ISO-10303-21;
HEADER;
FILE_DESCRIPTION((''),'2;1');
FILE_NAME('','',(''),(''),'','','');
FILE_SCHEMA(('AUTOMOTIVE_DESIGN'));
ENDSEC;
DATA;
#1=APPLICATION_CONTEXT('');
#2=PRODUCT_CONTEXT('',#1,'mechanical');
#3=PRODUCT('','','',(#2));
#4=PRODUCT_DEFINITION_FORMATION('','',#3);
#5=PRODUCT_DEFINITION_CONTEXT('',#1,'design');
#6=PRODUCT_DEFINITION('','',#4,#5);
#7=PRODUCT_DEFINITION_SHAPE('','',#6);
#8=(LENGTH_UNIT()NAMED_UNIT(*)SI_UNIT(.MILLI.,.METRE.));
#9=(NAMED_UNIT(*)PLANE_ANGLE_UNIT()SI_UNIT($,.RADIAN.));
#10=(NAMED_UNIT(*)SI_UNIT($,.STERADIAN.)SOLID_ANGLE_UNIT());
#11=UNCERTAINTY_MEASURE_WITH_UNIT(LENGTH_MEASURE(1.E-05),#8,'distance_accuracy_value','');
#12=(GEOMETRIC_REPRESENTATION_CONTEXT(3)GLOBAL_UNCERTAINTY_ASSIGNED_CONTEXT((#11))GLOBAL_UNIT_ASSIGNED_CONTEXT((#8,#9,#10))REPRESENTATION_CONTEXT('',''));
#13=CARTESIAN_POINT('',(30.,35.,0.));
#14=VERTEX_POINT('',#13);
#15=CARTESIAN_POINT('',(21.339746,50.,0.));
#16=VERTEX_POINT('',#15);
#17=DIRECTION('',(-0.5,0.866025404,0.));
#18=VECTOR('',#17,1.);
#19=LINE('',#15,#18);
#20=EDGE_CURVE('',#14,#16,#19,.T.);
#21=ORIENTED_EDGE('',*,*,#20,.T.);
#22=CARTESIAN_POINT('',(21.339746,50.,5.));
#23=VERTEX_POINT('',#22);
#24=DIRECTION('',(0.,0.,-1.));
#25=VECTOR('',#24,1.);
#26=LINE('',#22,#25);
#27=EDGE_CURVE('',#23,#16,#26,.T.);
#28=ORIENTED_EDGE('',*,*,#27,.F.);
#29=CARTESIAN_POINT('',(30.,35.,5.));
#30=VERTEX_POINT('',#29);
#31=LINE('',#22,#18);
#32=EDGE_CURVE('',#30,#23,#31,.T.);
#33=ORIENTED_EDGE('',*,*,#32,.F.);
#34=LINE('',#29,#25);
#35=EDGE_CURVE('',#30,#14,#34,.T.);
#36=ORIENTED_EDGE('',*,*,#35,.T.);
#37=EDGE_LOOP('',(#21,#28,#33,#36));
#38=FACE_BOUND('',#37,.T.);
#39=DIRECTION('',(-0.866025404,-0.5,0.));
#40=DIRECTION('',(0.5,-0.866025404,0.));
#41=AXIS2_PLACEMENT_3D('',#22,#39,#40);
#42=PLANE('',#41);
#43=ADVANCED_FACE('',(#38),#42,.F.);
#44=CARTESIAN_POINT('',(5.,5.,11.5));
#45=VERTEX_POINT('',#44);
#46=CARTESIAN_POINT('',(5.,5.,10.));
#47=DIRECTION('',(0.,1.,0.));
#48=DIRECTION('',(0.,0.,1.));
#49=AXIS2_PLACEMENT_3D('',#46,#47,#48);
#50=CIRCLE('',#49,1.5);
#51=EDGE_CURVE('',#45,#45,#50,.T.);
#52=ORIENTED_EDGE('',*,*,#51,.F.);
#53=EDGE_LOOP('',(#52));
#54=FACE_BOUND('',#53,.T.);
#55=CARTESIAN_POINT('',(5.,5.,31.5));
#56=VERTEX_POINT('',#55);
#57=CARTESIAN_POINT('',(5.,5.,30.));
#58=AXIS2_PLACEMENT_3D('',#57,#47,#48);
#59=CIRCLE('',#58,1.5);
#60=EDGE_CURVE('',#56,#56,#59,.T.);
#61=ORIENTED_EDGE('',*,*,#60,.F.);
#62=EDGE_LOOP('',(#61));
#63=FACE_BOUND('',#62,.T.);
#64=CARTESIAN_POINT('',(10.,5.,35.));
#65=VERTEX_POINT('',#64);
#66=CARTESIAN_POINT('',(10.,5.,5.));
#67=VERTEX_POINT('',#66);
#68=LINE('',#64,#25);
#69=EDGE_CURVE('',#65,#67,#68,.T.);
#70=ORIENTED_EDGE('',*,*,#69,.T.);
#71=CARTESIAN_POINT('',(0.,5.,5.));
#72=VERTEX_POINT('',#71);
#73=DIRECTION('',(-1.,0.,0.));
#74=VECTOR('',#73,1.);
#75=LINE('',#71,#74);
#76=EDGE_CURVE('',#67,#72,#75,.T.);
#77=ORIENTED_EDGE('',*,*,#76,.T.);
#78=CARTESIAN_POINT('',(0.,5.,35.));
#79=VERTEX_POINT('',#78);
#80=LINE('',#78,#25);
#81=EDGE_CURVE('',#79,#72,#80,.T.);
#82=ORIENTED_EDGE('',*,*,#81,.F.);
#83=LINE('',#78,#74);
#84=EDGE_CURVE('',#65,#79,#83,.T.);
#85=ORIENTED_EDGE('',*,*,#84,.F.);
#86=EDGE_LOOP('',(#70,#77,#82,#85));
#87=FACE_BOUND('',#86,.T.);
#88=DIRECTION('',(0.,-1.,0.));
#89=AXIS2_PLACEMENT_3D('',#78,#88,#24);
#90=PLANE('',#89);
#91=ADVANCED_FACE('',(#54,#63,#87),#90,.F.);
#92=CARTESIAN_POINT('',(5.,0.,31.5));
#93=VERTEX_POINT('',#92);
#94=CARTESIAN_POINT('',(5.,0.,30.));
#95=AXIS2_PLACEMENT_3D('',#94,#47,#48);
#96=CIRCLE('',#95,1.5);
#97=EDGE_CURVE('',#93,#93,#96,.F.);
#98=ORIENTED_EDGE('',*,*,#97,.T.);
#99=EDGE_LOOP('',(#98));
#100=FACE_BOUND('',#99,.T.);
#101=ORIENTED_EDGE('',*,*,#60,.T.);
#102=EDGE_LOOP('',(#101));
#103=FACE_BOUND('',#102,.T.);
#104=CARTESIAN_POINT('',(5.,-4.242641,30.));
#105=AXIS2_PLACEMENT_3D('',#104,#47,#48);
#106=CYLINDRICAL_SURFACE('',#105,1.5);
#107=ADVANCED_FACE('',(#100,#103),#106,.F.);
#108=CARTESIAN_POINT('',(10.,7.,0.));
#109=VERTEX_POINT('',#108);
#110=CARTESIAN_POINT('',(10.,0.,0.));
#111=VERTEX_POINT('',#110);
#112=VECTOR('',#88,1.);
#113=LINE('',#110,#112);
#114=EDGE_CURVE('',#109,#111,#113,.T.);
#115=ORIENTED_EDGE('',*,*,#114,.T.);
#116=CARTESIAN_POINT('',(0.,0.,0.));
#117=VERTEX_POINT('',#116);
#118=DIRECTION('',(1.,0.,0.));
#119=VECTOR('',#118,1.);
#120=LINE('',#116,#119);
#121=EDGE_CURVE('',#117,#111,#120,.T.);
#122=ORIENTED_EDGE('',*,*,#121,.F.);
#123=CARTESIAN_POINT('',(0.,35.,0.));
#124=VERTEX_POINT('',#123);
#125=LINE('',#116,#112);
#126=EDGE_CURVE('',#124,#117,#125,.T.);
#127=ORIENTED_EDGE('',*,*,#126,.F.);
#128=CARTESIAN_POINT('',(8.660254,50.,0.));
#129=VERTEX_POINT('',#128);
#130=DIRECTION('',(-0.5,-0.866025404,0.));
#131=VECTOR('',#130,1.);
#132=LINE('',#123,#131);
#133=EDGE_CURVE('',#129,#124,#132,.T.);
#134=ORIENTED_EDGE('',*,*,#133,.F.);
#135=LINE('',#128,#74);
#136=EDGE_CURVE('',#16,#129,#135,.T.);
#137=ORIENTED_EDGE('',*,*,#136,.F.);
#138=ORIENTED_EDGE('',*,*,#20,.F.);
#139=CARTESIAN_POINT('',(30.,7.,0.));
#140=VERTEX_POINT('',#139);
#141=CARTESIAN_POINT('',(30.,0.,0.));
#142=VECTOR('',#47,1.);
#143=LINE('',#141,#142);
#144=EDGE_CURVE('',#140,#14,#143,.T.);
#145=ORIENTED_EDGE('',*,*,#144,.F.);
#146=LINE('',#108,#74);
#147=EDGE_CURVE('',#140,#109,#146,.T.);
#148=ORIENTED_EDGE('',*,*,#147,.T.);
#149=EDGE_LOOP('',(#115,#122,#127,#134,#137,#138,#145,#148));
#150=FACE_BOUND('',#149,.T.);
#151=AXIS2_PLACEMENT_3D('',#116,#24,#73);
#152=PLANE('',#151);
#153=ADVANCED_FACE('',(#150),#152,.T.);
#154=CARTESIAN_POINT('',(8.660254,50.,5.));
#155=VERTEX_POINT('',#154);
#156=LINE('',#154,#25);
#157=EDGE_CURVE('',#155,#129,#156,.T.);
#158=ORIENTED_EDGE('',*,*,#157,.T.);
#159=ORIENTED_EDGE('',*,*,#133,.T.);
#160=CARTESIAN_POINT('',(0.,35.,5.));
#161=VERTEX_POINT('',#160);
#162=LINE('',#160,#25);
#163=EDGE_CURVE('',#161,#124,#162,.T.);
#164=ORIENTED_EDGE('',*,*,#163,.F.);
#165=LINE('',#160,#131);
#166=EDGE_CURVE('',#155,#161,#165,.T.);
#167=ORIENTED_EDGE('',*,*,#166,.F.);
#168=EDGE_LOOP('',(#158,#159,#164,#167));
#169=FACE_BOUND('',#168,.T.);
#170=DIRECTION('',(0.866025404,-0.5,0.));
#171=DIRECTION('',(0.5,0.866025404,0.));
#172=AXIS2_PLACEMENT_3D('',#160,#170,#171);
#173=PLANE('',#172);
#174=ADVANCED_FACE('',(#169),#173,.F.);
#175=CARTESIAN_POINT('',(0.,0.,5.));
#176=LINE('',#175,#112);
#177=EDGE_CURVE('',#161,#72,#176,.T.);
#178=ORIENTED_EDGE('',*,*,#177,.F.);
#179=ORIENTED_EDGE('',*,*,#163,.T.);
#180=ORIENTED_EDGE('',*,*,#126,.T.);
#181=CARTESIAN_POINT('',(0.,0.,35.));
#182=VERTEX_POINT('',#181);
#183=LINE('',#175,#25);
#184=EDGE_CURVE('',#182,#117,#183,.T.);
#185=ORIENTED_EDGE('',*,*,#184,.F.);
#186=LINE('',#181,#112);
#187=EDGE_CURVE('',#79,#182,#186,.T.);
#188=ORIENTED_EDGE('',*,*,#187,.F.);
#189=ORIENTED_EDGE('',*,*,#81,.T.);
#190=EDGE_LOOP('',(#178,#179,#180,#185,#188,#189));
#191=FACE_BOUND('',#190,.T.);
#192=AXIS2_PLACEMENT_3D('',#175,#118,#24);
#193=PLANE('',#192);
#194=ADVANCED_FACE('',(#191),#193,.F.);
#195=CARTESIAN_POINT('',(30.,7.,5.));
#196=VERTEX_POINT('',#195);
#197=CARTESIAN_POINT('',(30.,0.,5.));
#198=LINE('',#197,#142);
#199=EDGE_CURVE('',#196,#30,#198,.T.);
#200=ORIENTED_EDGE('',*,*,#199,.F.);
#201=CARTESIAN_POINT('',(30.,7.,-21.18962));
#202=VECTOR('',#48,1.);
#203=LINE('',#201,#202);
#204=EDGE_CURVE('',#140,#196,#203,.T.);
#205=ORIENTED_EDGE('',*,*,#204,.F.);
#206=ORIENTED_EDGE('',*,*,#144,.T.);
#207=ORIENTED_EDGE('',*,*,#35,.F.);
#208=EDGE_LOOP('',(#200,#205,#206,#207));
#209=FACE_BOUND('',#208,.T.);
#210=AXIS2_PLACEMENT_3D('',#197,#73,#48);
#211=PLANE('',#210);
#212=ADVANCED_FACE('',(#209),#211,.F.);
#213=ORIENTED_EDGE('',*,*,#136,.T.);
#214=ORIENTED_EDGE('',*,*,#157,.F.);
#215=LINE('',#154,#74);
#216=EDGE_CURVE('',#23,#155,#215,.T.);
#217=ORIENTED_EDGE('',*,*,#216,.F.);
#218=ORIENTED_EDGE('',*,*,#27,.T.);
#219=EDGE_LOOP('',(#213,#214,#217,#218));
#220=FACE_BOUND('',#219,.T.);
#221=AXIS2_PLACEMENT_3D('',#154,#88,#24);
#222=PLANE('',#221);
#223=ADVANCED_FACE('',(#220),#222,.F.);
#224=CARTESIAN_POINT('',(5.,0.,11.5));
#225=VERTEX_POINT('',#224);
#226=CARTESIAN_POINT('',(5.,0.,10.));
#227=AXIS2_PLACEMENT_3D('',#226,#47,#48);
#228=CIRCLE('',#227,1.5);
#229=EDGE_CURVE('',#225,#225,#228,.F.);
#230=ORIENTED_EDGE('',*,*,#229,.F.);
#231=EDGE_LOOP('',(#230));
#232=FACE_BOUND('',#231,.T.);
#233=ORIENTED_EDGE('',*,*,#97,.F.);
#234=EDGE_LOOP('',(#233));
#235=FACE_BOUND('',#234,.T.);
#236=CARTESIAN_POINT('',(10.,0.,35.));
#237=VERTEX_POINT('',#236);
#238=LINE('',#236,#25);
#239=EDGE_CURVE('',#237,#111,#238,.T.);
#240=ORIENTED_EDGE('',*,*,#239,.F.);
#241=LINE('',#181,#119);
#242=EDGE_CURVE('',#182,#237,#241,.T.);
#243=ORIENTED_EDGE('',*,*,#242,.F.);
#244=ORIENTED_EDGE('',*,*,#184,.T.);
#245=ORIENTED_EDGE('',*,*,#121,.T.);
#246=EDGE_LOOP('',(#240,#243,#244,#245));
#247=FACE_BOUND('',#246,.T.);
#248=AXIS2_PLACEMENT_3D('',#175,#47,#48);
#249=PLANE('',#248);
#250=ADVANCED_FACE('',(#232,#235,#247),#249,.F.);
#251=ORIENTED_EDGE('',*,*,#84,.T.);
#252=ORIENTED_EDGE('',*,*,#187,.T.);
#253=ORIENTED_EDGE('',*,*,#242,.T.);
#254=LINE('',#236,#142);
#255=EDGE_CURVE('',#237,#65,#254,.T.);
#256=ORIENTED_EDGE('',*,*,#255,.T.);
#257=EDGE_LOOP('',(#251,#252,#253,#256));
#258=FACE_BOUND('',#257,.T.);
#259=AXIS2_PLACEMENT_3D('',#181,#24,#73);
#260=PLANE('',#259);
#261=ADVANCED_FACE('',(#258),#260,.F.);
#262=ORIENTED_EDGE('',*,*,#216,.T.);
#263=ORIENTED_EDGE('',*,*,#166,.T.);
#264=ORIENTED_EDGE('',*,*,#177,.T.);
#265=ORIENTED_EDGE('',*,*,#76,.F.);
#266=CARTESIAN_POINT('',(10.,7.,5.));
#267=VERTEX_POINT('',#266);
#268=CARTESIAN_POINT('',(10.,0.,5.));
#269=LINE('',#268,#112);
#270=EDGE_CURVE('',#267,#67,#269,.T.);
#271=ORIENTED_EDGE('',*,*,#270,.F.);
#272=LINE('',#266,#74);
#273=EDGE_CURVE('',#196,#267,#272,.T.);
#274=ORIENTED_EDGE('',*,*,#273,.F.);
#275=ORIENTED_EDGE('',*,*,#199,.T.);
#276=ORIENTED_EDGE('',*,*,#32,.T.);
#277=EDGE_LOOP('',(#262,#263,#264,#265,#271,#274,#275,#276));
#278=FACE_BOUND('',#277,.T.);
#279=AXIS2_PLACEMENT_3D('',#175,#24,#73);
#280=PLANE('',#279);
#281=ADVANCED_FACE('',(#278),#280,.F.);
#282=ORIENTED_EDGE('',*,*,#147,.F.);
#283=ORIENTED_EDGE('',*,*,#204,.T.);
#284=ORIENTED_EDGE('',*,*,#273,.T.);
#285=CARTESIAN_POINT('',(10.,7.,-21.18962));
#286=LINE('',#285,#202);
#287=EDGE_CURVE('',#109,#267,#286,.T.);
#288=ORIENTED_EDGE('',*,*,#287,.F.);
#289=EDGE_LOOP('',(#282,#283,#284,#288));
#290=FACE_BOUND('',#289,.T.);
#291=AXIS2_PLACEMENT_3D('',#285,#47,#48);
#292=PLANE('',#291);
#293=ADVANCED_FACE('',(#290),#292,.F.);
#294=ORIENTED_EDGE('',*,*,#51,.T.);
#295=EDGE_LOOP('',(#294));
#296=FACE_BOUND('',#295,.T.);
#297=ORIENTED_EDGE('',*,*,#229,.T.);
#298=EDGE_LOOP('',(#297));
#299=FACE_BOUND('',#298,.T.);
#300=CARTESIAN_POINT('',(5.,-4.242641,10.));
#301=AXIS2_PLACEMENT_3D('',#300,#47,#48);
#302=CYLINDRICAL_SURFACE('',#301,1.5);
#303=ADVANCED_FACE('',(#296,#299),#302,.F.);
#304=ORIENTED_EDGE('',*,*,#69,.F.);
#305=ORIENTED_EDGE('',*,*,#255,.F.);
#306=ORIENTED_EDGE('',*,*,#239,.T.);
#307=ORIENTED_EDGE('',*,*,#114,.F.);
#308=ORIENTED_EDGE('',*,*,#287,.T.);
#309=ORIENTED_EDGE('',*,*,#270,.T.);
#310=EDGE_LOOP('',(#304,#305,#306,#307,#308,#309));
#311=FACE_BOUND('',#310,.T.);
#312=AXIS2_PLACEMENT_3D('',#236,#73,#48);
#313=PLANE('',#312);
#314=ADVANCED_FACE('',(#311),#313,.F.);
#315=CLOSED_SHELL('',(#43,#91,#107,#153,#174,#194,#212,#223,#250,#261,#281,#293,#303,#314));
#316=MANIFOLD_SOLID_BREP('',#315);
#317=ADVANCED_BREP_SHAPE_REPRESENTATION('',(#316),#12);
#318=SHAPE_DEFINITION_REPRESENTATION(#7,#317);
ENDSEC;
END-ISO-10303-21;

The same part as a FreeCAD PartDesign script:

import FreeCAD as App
import Part
import Sketcher
from FreeCAD import Vector
Q = App.Units.Quantity


def add_polygon(sketch, points):
    """Adds a closed chain of lines whose ends are joined by coincident constraints."""
    first, n = sketch.GeometryCount, len(points)
    for a, b in zip(points, points[1:] + points[:1]):
        sketch.addGeometry(Part.LineSegment(App.Vector(*a, 0), App.Vector(*b, 0)), False)
    for i in range(n):
        sketch.addConstraint(Sketcher.Constraint("Coincident", first + i, 2, first + (i + 1) % n, 1))

doc = App.newDocument("Part")
body = doc.addObject("PartDesign::Body", "Body")

# Sketch on XY plane
sketch1 = body.newObject("Sketcher::SketchObject", "Sketch")
sketch1.AttachmentSupport = (doc.getObject("XY_Plane"), [""])
sketch1.MapMode = "FlatFace"
add_polygon(sketch1, [(8.660254, 50), (0, 35), (0, 0), (30, 0), (30, 35), (21.339746, 50)])  # lines 0-5
sketch1.addConstraint([
    Sketcher.Constraint("Vertical", 1),
    Sketcher.Constraint("Horizontal", 2),
    Sketcher.Constraint("Vertical", 3),
    Sketcher.Constraint("Horizontal", 5),
    Sketcher.Constraint("Coincident", 1, 2, -1, 1),
    Sketcher.Constraint("Horizontal", 0, 2, 3, 2),
    Sketcher.Constraint("Equal", 0, 4),
    Sketcher.Constraint("DistanceX", 2, 1, 2, 2, 30.0),
    Sketcher.Constraint("DistanceY", 1, 2, 1, 1, 35.0),
    Sketcher.Constraint("Angle", 0, Q("-120 deg")),
    Sketcher.Constraint("DistanceY", -1, 1, 4, 2, 50.0),
])
pad1 = body.newObject("PartDesign::Pad", "Pad")
pad1.Profile = sketch1
pad1.Length = 5

# Sketch on XY plane
sketch2 = body.newObject("Sketcher::SketchObject", "Sketch001")
sketch2.AttachmentSupport = (doc.getObject("XY_Plane"), [""])
sketch2.MapMode = "FlatFace"
sketch2.AttachmentOffset = App.Placement(Vector(0, 0, 5), App.Rotation())
add_polygon(sketch2, [(0, 5), (0, 0), (10, 0), (10, 5)])  # lines 0-3
sketch2.addConstraint([
    Sketcher.Constraint("Vertical", 0),
    Sketcher.Constraint("Horizontal", 1),
    Sketcher.Constraint("Vertical", 2),
    Sketcher.Constraint("Horizontal", 3),
    Sketcher.Constraint("Coincident", 0, 2, -1, 1),
    Sketcher.Constraint("DistanceX", 1, 1, 1, 2, 10.0),
    Sketcher.Constraint("DistanceY", 0, 2, 0, 1, 5.0),
])
pad2 = body.newObject("PartDesign::Pad", "Pad001")
pad2.Profile = sketch2
pad2.Length = 30

# Sketch on XZ plane
sketch3 = body.newObject("Sketcher::SketchObject", "Sketch002")
sketch3.AttachmentSupport = (doc.getObject("XZ_Plane"), [""])
sketch3.MapMode = "FlatFace"
sketch3.AttachmentOffset = App.Placement(Vector(0, 0, -5), App.Rotation())
sketch3.addGeometry([
    Part.Circle(Vector(5, 10, 0), Vector(0, 0, 1), 1.5),
    Part.Circle(Vector(5, 30, 0), Vector(0, 0, 1), 1.5),
], False)
sketch3.addConstraint([
    Sketcher.Constraint("Equal", 0, 1),
    Sketcher.Constraint("Vertical", 0, 3, 1, 3),
    Sketcher.Constraint("Diameter", 0, 3.0),
    Sketcher.Constraint("DistanceX", -1, 1, 0, 3, 5.0),
    Sketcher.Constraint("DistanceY", -1, 1, 0, 3, 10.0),
    Sketcher.Constraint("DistanceY", -1, 1, 1, 3, 30.0),
])
pocket1 = body.newObject("PartDesign::Pocket", "Pocket")
pocket1.Profile = sketch3
pocket1.Length = 5
pocket1.Reversed = True

# Sketch on XY plane
sketch4 = body.newObject("Sketcher::SketchObject", "Sketch003")
sketch4.AttachmentSupport = (doc.getObject("XY_Plane"), [""])
sketch4.MapMode = "FlatFace"
sketch4.AttachmentOffset = App.Placement(Vector(0, 0, 5), App.Rotation())
add_polygon(sketch4, [(10, 7), (10, 0), (30, 0), (30, 7)])  # lines 0-3
sketch4.addConstraint([
    Sketcher.Constraint("Vertical", 0),
    Sketcher.Constraint("Horizontal", 1),
    Sketcher.Constraint("Vertical", 2),
    Sketcher.Constraint("Horizontal", 3),
    Sketcher.Constraint("PointOnObject", 0, 2, -1),
    Sketcher.Constraint("DistanceX", 1, 1, 1, 2, 20.0),
    Sketcher.Constraint("DistanceY", 0, 2, 0, 1, 7.0),
    Sketcher.Constraint("DistanceX", -1, 1, 0, 2, 10.0),
])
pocket2 = body.newObject("PartDesign::Pocket", "Pocket001")
pocket2.Profile = sketch4
pocket2.Length = 5

doc.recompute()
